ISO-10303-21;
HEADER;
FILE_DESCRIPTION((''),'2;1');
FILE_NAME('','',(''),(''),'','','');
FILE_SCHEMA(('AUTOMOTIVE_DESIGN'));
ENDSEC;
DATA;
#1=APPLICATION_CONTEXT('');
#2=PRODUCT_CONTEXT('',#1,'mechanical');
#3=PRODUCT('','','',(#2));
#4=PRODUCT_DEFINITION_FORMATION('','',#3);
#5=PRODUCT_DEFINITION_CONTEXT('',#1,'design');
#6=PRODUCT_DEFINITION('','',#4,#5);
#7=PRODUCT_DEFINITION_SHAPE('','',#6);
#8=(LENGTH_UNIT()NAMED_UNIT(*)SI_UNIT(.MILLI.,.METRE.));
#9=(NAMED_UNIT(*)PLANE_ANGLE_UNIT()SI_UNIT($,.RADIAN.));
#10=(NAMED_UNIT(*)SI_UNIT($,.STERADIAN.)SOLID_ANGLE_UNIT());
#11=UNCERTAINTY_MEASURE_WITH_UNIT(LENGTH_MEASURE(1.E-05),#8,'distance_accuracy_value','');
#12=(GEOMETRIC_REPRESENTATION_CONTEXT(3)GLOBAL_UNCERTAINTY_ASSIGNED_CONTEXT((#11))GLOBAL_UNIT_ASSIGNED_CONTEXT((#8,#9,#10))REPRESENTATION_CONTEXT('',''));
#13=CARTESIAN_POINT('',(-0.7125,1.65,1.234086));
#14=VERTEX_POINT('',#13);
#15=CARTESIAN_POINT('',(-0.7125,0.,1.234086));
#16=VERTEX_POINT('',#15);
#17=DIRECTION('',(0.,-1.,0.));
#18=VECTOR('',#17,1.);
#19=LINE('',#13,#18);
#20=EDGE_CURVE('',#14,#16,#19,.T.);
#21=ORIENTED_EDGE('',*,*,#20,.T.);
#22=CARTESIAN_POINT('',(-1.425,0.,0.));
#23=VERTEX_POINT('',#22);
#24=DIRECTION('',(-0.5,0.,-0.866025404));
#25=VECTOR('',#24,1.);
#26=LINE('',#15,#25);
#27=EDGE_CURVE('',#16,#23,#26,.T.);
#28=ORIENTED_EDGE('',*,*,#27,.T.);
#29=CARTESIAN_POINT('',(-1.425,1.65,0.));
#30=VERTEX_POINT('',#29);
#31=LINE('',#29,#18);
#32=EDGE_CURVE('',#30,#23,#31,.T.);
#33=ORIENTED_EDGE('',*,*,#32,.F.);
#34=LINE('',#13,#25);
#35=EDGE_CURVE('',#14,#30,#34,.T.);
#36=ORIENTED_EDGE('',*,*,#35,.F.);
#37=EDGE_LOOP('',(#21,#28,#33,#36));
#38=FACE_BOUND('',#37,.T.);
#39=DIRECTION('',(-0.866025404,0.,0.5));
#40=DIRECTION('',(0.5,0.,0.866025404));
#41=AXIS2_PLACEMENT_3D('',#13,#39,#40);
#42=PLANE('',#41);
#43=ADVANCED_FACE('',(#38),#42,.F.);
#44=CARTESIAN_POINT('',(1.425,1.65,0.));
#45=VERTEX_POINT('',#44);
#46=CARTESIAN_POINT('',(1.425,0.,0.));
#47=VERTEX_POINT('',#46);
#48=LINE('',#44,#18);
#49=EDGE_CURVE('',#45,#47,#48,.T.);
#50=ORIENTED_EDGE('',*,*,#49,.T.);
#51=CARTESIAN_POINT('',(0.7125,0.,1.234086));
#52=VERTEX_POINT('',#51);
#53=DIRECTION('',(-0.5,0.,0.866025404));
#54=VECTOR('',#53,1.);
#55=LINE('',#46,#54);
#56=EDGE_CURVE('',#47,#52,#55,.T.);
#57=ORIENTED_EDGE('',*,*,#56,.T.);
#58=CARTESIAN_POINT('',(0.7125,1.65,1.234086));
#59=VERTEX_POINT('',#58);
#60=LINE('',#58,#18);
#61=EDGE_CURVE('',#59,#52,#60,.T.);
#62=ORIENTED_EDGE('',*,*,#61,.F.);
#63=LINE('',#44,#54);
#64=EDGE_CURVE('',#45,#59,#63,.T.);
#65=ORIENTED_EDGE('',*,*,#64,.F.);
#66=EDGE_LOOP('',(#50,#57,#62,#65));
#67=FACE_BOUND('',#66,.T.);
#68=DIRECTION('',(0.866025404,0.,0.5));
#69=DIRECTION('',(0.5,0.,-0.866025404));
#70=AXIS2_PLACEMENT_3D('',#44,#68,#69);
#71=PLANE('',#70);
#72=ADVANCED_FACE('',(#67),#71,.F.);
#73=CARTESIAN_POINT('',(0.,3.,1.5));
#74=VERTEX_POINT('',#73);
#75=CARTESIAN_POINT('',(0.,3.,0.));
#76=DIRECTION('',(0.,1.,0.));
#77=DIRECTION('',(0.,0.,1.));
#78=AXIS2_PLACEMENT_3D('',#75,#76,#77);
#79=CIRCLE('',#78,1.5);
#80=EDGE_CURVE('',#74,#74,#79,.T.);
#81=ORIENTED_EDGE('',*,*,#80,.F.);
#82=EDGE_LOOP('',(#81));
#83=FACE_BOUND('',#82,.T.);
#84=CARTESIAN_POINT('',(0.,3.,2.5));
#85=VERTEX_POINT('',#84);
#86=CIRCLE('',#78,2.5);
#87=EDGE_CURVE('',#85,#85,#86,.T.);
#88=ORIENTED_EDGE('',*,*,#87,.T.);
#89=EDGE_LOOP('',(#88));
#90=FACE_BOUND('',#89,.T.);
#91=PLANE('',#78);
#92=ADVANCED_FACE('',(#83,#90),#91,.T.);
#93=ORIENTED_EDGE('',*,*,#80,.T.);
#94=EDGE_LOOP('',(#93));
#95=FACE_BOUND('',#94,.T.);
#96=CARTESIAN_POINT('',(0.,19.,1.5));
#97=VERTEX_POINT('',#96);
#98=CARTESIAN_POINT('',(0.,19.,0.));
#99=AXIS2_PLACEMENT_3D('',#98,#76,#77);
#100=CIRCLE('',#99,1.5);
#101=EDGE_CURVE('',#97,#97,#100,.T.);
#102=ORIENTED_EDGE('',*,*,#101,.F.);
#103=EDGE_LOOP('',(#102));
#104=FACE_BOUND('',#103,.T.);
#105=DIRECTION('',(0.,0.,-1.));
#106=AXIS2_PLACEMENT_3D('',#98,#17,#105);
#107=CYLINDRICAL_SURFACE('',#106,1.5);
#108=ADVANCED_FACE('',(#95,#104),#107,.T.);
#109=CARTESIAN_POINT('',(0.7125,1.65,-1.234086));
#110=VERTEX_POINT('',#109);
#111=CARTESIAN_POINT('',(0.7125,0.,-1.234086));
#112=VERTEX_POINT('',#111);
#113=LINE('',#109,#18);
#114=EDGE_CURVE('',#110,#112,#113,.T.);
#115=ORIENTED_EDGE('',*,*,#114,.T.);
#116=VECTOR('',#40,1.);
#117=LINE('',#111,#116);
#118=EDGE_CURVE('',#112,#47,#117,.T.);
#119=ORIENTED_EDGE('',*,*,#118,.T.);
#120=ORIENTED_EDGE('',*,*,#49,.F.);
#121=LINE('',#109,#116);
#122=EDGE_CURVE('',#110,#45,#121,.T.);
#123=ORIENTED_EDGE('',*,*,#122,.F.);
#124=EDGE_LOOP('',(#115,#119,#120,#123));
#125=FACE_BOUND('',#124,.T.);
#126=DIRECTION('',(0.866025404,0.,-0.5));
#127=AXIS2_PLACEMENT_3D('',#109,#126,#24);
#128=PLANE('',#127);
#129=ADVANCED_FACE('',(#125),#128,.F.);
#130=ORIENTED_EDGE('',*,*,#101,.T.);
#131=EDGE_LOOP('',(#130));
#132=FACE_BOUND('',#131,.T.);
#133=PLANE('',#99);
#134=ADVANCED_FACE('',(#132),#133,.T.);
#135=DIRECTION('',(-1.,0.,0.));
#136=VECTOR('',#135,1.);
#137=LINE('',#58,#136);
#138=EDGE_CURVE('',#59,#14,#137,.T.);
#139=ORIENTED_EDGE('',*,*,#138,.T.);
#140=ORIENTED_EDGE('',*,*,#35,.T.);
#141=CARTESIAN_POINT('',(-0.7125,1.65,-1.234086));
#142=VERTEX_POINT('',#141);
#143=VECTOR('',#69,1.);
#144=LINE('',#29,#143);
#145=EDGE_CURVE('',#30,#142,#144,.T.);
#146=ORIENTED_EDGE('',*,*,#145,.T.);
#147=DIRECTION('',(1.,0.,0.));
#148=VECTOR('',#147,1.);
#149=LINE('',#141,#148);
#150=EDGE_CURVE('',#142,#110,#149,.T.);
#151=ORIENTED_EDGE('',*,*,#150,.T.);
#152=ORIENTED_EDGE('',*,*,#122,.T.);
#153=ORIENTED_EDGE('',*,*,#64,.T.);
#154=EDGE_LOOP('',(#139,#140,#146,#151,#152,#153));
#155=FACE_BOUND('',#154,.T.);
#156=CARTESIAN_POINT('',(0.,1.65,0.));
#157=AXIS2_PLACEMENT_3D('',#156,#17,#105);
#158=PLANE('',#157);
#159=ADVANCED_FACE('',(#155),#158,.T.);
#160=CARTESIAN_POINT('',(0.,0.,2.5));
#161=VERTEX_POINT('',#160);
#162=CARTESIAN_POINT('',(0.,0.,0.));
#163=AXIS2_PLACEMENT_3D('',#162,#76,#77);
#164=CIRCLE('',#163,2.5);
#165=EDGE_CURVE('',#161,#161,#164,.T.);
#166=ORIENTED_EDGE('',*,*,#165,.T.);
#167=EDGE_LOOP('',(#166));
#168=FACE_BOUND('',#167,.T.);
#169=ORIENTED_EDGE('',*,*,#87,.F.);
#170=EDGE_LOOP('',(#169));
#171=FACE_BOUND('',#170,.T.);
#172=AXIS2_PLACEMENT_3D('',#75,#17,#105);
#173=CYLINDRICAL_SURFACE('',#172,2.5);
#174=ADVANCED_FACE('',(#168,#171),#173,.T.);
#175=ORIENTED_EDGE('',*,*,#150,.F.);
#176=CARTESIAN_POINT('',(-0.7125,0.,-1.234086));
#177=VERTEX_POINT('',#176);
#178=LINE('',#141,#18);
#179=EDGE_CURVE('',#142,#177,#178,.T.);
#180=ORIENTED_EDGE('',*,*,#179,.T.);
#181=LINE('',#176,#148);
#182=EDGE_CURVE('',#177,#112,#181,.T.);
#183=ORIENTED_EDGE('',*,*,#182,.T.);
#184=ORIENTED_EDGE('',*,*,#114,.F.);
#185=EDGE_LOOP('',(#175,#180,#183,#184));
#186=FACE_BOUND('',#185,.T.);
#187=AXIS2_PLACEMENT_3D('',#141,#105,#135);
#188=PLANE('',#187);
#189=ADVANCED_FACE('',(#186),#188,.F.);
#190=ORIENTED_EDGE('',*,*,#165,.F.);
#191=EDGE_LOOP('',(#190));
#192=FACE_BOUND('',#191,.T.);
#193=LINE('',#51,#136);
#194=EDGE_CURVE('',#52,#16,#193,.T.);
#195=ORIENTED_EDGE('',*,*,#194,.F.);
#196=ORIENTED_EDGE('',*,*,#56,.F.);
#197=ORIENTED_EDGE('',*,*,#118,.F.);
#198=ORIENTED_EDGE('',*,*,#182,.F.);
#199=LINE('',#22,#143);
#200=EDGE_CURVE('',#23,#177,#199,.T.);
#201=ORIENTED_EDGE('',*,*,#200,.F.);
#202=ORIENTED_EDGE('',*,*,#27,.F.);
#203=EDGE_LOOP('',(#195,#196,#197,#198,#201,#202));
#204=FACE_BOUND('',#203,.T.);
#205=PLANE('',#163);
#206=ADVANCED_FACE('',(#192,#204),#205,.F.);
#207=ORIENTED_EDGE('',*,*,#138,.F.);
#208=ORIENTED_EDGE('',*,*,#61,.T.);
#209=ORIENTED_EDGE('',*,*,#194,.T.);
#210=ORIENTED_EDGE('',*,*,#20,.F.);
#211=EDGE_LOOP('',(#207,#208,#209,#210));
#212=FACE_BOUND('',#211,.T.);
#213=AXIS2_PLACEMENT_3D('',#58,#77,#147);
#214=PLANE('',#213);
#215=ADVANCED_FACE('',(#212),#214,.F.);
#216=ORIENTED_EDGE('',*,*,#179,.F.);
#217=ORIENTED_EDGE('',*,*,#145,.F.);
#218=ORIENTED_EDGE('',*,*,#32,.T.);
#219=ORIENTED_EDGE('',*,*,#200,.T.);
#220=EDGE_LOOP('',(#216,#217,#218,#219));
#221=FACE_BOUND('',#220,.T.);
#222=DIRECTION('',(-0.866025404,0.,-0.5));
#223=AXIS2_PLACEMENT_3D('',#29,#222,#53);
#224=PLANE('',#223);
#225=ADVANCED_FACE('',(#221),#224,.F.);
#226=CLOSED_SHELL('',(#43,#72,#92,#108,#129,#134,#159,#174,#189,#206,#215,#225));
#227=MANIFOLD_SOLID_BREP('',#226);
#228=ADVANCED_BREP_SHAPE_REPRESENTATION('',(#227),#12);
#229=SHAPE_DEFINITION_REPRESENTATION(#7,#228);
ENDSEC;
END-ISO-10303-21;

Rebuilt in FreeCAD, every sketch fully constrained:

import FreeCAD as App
import Part
import Sketcher
Q = App.Units.Quantity


def add_polygon(sketch, points):
    """Adds a closed chain of lines whose ends are joined by coincident constraints."""
    first, n = sketch.GeometryCount, len(points)
    for a, b in zip(points, points[1:] + points[:1]):
        sketch.addGeometry(Part.LineSegment(App.Vector(*a, 0), App.Vector(*b, 0)), False)
    for i in range(n):
        sketch.addConstraint(Sketcher.Constraint("Coincident", first + i, 2, first + (i + 1) % n, 1))

doc = App.newDocument("Part")
body = doc.addObject("PartDesign::Body", "Body")

sketch1 = body.newObject("Sketcher::SketchObject", "Sketch")
sketch1.AttachmentSupport = (doc.getObject("XZ_Plane"), [""])
sketch1.MapMode = "FlatFace"
sketch1.addGeometry(Part.Circle(App.Vector(0, 0, 0), App.Vector(0, 0, 1), 2.5), False)
sketch1.addConstraint(Sketcher.Constraint("Coincident", 0, 3, -1, 1))
sketch1.addConstraint(Sketcher.Constraint("Diameter", 0, Q("5 mm")))
pad1 = body.newObject("PartDesign::Pad", "Pad")
pad1.Profile = sketch1
pad1.Length = 3
pad1.Reversed = True

sketch2 = body.newObject("Sketcher::SketchObject", "Sketch001")
sketch2.AttachmentSupport = (doc.getObject("XZ_Plane"), [""])
sketch2.MapMode = "FlatFace"
sketch2.AttachmentOffset = App.Placement(App.Vector(0, 0, -3), App.Rotation())
sketch2.addGeometry(Part.Circle(App.Vector(0, 0, 0), App.Vector(0, 0, 1), 1.5), False)
sketch2.addConstraint(Sketcher.Constraint("Coincident", 0, 3, -1, 1))
sketch2.addConstraint(Sketcher.Constraint("Diameter", 0, Q("3 mm")))
pad2 = body.newObject("PartDesign::Pad", "Pad001")
pad2.Profile = sketch2
pad2.Length = 16
pad2.Reversed = True

sketch3 = body.newObject("Sketcher::SketchObject", "Sketch002")
sketch3.AttachmentSupport = (doc.getObject("XZ_Plane"), [""])
sketch3.MapMode = "FlatFace"
add_polygon(sketch3, [(1.425, 0), (0.7125, 1.234086), (-0.7125, 1.234086), (-1.425, 0), (-0.7125, -1.234086), (0.7125, -1.234086)])
sketch3.addConstraint(Sketcher.Constraint("Horizontal", 1))
sketch3.addConstraint(Sketcher.Constraint("Horizontal", 4))
sketch3.addConstraint(Sketcher.Constraint("Symmetric", 0, 2, 3, 2, -1, 1))
sketch3.addConstraint(Sketcher.Constraint("Symmetric", 2, 2, 5, 2, -1, 1))
sketch3.addConstraint(Sketcher.Constraint("PointOnObject", 2, 2, -1))
sketch3.addConstraint(Sketcher.Constraint("Parallel", 2, 5))
sketch3.addConstraint(Sketcher.Constraint("Vertical", 1, 2, 3, 2))
sketch3.addConstraint(Sketcher.Constraint("Angle", 0, Q("120 deg")))
sketch3.addConstraint(Sketcher.Constraint("DistanceX", 1, 2, 1, 1, Q("1.425 mm")))
sketch3.addConstraint(Sketcher.Constraint("DistanceX", 2, 2, 5, 2, Q("2.85 mm")))
pocket1 = body.newObject("PartDesign::Pocket", "Pocket")
pocket1.Profile = sketch3
pocket1.Length = 1.65

doc.recompute()
